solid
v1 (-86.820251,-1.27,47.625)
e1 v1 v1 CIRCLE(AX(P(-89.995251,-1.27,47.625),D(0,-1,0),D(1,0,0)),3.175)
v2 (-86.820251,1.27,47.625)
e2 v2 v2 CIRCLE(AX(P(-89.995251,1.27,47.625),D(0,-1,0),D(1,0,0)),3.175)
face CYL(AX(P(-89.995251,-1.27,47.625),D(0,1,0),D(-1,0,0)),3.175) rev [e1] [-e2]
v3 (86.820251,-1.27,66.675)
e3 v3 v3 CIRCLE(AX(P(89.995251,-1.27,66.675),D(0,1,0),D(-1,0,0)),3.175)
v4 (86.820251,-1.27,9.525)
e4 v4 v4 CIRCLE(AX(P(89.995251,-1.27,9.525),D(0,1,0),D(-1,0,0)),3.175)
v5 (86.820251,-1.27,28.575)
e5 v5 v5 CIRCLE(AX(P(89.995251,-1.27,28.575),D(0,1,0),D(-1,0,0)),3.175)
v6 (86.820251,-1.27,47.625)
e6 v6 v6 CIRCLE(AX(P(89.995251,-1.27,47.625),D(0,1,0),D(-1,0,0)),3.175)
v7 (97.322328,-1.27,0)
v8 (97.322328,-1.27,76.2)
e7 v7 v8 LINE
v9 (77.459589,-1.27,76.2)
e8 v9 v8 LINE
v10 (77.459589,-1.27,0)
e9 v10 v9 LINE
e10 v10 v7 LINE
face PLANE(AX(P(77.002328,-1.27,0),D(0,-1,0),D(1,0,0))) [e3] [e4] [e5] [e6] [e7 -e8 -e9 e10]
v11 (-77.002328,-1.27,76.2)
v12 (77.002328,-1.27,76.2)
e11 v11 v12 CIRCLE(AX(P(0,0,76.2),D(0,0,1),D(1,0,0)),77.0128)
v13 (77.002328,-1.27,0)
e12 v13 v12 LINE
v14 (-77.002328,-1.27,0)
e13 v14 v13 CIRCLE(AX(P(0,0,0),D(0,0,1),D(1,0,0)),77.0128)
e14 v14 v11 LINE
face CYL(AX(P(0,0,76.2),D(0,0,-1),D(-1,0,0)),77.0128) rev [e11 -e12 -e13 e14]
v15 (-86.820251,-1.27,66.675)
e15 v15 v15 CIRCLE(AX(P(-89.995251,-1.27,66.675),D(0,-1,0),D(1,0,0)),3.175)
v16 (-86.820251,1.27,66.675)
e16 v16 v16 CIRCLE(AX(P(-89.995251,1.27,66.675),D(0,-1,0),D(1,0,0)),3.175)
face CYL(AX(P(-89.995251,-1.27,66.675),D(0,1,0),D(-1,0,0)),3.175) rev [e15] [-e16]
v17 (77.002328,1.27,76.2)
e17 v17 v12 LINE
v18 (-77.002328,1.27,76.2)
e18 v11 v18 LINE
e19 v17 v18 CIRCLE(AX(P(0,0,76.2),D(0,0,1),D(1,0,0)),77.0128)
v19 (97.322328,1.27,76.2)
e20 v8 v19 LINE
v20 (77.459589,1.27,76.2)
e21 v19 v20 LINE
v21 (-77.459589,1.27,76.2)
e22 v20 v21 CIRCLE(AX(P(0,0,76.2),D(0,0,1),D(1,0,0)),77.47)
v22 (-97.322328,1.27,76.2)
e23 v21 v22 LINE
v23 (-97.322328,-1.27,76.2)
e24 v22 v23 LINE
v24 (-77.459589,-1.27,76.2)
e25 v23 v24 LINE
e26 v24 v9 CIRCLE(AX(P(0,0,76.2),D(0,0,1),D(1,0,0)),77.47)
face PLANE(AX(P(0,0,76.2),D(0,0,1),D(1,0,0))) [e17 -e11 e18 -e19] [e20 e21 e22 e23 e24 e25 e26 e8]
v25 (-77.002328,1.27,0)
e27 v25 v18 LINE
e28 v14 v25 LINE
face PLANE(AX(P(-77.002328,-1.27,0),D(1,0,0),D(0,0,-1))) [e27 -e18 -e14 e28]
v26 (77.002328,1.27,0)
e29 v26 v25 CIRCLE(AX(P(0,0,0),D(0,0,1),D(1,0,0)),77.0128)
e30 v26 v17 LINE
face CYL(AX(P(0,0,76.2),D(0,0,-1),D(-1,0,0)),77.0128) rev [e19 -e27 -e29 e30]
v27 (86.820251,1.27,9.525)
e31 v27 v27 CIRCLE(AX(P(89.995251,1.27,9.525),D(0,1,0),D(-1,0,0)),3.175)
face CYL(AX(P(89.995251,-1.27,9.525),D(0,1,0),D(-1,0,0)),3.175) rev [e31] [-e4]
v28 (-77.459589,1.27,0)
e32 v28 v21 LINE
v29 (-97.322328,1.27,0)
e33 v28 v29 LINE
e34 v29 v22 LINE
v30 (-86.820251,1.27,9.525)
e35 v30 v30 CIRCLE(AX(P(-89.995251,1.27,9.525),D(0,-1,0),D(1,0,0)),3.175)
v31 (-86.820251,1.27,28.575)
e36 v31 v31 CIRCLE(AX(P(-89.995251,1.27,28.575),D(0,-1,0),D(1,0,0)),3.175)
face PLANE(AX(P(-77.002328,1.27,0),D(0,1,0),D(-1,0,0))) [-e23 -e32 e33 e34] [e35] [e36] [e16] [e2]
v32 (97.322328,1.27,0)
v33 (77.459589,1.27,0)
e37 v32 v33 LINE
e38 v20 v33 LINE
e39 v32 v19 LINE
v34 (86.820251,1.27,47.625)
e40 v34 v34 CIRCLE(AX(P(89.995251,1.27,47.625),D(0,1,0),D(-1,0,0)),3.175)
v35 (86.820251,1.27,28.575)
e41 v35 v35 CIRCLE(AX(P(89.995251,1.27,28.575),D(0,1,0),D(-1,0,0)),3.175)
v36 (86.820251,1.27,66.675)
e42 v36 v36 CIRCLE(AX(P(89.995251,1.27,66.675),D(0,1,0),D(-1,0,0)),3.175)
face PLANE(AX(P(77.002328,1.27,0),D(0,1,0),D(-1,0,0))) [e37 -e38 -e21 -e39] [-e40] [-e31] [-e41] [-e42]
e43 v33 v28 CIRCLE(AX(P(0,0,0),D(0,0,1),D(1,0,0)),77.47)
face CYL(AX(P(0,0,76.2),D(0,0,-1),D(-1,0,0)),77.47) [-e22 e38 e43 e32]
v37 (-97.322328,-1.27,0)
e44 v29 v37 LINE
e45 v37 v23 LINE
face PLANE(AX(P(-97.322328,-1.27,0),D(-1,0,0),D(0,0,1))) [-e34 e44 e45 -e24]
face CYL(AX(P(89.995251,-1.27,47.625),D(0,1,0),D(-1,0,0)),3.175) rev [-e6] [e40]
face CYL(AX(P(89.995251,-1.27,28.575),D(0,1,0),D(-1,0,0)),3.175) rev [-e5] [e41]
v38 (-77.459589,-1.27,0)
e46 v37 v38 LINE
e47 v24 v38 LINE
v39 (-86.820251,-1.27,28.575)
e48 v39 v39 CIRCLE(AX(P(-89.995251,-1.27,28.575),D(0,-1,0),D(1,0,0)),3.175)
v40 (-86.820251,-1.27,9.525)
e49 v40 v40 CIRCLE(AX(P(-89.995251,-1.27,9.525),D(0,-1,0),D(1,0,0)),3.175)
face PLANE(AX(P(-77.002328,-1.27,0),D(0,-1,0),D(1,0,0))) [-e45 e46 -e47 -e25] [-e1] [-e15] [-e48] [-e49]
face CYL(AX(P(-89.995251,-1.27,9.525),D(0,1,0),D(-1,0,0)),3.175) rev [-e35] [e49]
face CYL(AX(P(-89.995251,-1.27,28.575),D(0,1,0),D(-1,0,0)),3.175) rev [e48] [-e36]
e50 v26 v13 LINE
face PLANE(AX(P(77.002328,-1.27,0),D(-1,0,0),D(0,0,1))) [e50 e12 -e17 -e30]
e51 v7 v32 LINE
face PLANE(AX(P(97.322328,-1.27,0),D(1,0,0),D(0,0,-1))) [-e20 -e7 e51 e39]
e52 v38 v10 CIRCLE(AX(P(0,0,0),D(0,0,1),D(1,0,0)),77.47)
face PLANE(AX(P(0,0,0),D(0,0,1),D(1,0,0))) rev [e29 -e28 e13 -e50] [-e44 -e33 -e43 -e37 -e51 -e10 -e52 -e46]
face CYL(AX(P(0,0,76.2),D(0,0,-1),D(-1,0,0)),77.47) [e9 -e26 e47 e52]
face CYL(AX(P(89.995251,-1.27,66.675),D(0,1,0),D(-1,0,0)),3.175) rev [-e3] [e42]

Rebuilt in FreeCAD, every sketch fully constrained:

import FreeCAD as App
import Part
import Sketcher
from FreeCAD import Vector
Q = App.Units.Quantity


def add_polygon(sketch, points):
    """Adds a closed chain of lines whose ends are joined by coincident constraints."""
    first, n = sketch.GeometryCount, len(points)
    for a, b in zip(points, points[1:] + points[:1]):
        sketch.addGeometry(Part.LineSegment(App.Vector(*a, 0), App.Vector(*b, 0)), False)
    for i in range(n):
        sketch.addConstraint(Sketcher.Constraint("Coincident", first + i, 2, first + (i + 1) % n, 1))

doc = App.newDocument("Part")
params = doc.addObject("Spreadsheet::Sheet", "Params")
for row, (alias, value) in enumerate([
    ("sketch1_diameter", "6.1 in"),
    ("sketch1_diameter2", "6.064 in"),
    ("pad1_length", "3 in"),
    ("sketch2_width", "0.8 in"),
    ("sketch2_height", "0.1 in"),
    ("pad2_length", "3 in"),
    ("sketch3_diameter", "0.25 in"),
    ("pocket1_length", "0.1 in"),
], start=1):
    params.set(f"A{row}", alias)
    params.set(f"B{row}", "=" + value)
    params.setAlias(f"B{row}", alias)

body = doc.addObject("PartDesign::Body", "Body")

sketch1 = body.newObject("Sketcher::SketchObject", "Sketch")
sketch1.AttachmentSupport = (doc.getObject("XY_Plane"), [""])
sketch1.MapMode = "FlatFace"
sketch1.addGeometry([
    Part.Circle(Vector(0, 0, 0), Vector(0, 0, 1), 77),
    Part.Circle(Vector(0, 0, 0), Vector(0, 0, 1), 77),
], False)
sketch1.addConstraint([
    Sketcher.Constraint("Coincident", 0, 3, -1, 1),
    Sketcher.Constraint("Coincident", 1, 3, -1, 1),
    Sketcher.Constraint("Diameter", 0, Q("6.1 in")),
    Sketcher.Constraint("Diameter", 1, Q("6.064 in")),
])
sketch1.setExpression("Constraints[2]", "Params.sketch1_diameter")
sketch1.setExpression("Constraints[3]", "Params.sketch1_diameter2")
pad1 = body.newObject("PartDesign::Pad", "Pad")
pad1.Profile = sketch1
pad1.setExpression("Length", "Params.pad1_length")

sketch2 = body.newObject("Sketcher::SketchObject", "Sketch001")
sketch2.AttachmentSupport = (doc.getObject("XY_Plane"), [""])
sketch2.MapMode = "FlatFace"
sketch2.AttachmentOffset = App.Placement(Vector(0, 0, 3 * 25.4), App.Rotation())
add_polygon(sketch2, [(77, 1.3), (77, -1.3), (97.3, -1.3), (97.3, 1.3)])
add_polygon(sketch2, [(-97.3, 1.3), (-97.3, -1.3), (-77, -1.3), (-77, 1.3)])
sketch2.addConstraint([
    Sketcher.Constraint("Vertical", 0),
    Sketcher.Constraint("Horizontal", 1),
    Sketcher.Constraint("Vertical", 2),
    Sketcher.Constraint("Horizontal", 3),
    Sketcher.Constraint("Vertical", 4),
    Sketcher.Constraint("Horizontal", 5),
    Sketcher.Constraint("Vertical", 6),
    Sketcher.Constraint("Horizontal", 7),
    Sketcher.Constraint("Symmetric", 2, 2, 4, 2, -1, 1),
    Sketcher.Constraint("Symmetric", 0, 2, 6, 2, -1, 1),
    Sketcher.Constraint("Horizontal", 1, 2, 4, 2),
    Sketcher.Constraint("DistanceX", 1, 1, 1, 2, Q("0.8 in")),
    Sketcher.Constraint("DistanceY", 0, 2, 0, 1, Q("0.1 in")),
    Sketcher.Constraint("DistanceX", -1, 1, 0, 2, 77.002328),
])
sketch2.setExpression("Constraints[19]", "Params.sketch2_width")
sketch2.setExpression("Constraints[20]", "Params.sketch2_height")
pad2 = body.newObject("PartDesign::Pad", "Pad001")
pad2.Profile = sketch2
pad2.setExpression("Length", "Params.pad2_length")
pad2.Reversed = True

sketch3 = body.newObject("Sketcher::SketchObject", "Sketch002")
sketch3.AttachmentSupport = (doc.getObject("XZ_Plane"), [""])
sketch3.MapMode = "FlatFace"
sketch3.AttachmentOffset = App.Placement(Vector(0, 0, -0.05 * 25.4), App.Rotation())
sketch3.addGeometry([
    Part.Circle(Vector(90, 9.5, 0), Vector(0, 0, 1), 3.2),
    Part.Circle(Vector(90, 28.6, 0), Vector(0, 0, 1), 3.2),
    Part.Circle(Vector(90, 47.6, 0), Vector(0, 0, 1), 3.2),
    Part.Circle(Vector(90, 66.7, 0), Vector(0, 0, 1), 3.2),
    Part.Circle(Vector(-90, 9.5, 0), Vector(0, 0, 1), 3.2),
    Part.Circle(Vector(-90, 28.6, 0), Vector(0, 0, 1), 3.2),
    Part.Circle(Vector(-90, 47.6, 0), Vector(0, 0, 1), 3.2),
    Part.Circle(Vector(-90, 66.7, 0), Vector(0, 0, 1), 3.2),
], False)
sketch3.addConstraint([
    Sketcher.Constraint("Equal", 0, 1),
    Sketcher.Constraint("Equal", 1, 2),
    Sketcher.Constraint("Equal", 2, 3),
    Sketcher.Constraint("Equal", 3, 4),
    Sketcher.Constraint("Equal", 4, 5),
    Sketcher.Constraint("Equal", 5, 6),
    Sketcher.Constraint("Equal", 6, 7),
    Sketcher.Constraint("Symmetric", 0, 3, 4, 3, -2),
    Sketcher.Constraint("Symmetric", 1, 3, 5, 3, -2),
    Sketcher.Constraint("Symmetric", 2, 3, 6, 3, -2),
    Sketcher.Constraint("Symmetric", 3, 3, 7, 3, -2),
    Sketcher.Constraint("Vertical", 0, 3, 1, 3),
    Sketcher.Constraint("Vertical", 1, 3, 2, 3),
    Sketcher.Constraint("Vertical", 2, 3, 3, 3),
    Sketcher.Constraint("Diameter", 0, Q("0.25 in")),
    Sketcher.Constraint("DistanceY", 0, 3, 2, 3, Q("1.5 in")),
    Sketcher.Constraint("DistanceY", 1, 3, 3, 3, Q("1.5 in")),
    Sketcher.Constraint("DistanceY", 0, 3, 1, 3, Q("0.75 in")),
    Sketcher.Constraint("DistanceY", -1, 1, 0, 3, Q("0.375 in")),
    Sketcher.Constraint("DistanceX", -1, 1, 0, 3, 89.995251),
])
sketch3.setExpression("Constraints[14]", "Params.sketch3_diameter")
pocket1 = body.newObject("PartDesign::Pocket", "Pocket")
pocket1.Profile = sketch3
pocket1.setExpression("Length", "Params.pocket1_length")
pocket1.Reversed = True

doc.recompute()
